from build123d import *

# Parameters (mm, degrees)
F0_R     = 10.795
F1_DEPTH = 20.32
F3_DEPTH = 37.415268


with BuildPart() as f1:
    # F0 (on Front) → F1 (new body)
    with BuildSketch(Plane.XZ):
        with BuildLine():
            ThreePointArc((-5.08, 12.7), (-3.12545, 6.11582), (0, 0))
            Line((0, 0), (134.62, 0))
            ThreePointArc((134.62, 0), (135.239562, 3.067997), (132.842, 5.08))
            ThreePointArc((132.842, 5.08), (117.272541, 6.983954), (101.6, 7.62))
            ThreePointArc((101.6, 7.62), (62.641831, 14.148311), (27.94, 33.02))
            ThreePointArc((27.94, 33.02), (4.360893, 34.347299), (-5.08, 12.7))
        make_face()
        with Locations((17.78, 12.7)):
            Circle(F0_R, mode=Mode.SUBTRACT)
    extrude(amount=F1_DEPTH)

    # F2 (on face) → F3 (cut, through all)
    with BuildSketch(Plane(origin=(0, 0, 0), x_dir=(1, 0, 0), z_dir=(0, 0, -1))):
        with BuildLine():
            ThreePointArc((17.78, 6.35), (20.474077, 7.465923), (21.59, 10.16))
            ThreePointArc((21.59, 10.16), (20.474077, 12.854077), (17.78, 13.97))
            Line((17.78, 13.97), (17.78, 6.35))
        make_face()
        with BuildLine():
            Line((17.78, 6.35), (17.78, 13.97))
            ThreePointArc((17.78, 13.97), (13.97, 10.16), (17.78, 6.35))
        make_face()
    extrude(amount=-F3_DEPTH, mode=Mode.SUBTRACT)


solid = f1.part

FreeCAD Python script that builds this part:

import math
import FreeCAD as App
import Part
import Sketcher

V = App.Vector
Q = App.Units.Quantity

doc = App.newDocument("Part")
body = doc.addObject("PartDesign::Body", "Body")

sketch1 = body.newObject("Sketcher::SketchObject", "Sketch")
sketch1.AttachmentSupport = (doc.getObject("XZ_Plane"), [""])
sketch1.MapMode = "FlatFace"
sketch1.addGeometry([
    Part.ArcOfCircle(Part.Circle(V(31.60446, 20.007784, 0), V(0, 0, 1), 37.405258), math.radians(-168.733788), math.radians(-147.663393)),
    Part.LineSegment(V(0, 0, 0), V(134.62, 0, 0)),
    Part.ArcOfCircle(Part.Circle(V(132.346953, 2.055584, 0), V(0, 0, 1), 3.064664), math.radians(-42.123977), math.radians(80.70407)),
    Part.ArcOfCircle(Part.Circle(V(101.599996, -185.788343, 0), V(0, 0, 1), 193.408343), math.radians(80.70406), math.radians(89.999999)),
    Part.ArcOfCircle(Part.Circle(V(101.599999, 127.126996, 0), V(0, 0, 1), 119.506996), math.radians(-128.051213), math.radians(-89.999999)),
    Part.ArcOfCircle(Part.Circle(V(15.196623, 16.739237, 0), V(0, 0, 1), 20.675031), math.radians(51.948788), math.radians(191.266216)),
    Part.Circle(V(17.78, 12.7, 0), V(0, 0, 1), 10.795),
], False)
sketch1.addConstraint([
    Sketcher.Constraint("Coincident", 0, 2, 1, 1),
    Sketcher.Constraint("Coincident", 1, 2, 2, 1),
    Sketcher.Constraint("Tangent", 2, 2, 3, 1),
    Sketcher.Constraint("Tangent", 3, 2, 4, 2),
    Sketcher.Constraint("Tangent", 4, 1, 5, 1),
    Sketcher.Constraint("Tangent", 5, 2, 0, 1),
    Sketcher.Constraint("Horizontal", 1),
    Sketcher.Constraint("Coincident", 0, 2, -1, 1),
    Sketcher.Constraint("Horizontal", 6, 3, 5, 2),
    Sketcher.Constraint("Vertical", 4, 3, 3, 2),
    Sketcher.Constraint("Diameter", 6, Q("0.85 in")),
    Sketcher.Constraint("DistanceX", 1, 1, 1, 2, Q("5.3 in")),
    Sketcher.Constraint("DistanceX", -1, 1, 3, 3, Q("3.9999999 in")),
    Sketcher.Constraint("Radius", 4, Q("4.7049999 in")),
    Sketcher.Constraint("DistanceY", 3, 2, 4, 1, Q("1 in")),
    Sketcher.Constraint("DistanceX", -1, 1, 6, 3, Q("0.7 in")),
    Sketcher.Constraint("DistanceY", -1, 1, 6, 3, Q("0.5 in")),
    Sketcher.Constraint("DistanceY", -1, 1, 2, 2, Q("0.2 in")),
    Sketcher.Constraint("DistanceY", -1, 1, 3, 2, Q("0.3 in")),
    Sketcher.Constraint("DistanceX", 5, 2, -1, 1, Q("0.2 in")),
    Sketcher.Constraint("DistanceX", -1, 1, 2, 2, Q("5.23 in")),
])
pad1 = body.newObject("PartDesign::Pad", "Pad")
pad1.Profile = sketch1
pad1.Length = Q("0.8 in")

sketch2 = body.newObject("Sketcher::SketchObject", "Sketch001")
sketch2.AttachmentSupport = (doc.getObject("XY_Plane"), [""])
sketch2.MapMode = "FlatFace"
sketch2.addGeometry([
    Part.ArcOfCircle(Part.Circle(V(17.8, -10.2, 0), V(0, 0, 1), 3.8), math.radians(0), math.radians(90)),
    Part.ArcOfCircle(Part.Circle(V(17.8, -10.2, 0), V(0, 0, 1), 3.8), math.radians(-90), math.radians(0)),
    Part.ArcOfCircle(Part.Circle(V(17.8, -10.2, 0), V(0, 0, 1), 3.8), math.radians(90), math.radians(270)),
], False)
sketch2.addConstraint([
    Sketcher.Constraint("Tangent", 0, 1, 1, 2),
    Sketcher.Constraint("Tangent", 1, 1, 2, 2),
    Sketcher.Constraint("Tangent", 2, 1, 0, 2),
    Sketcher.Constraint("Horizontal", 2, 3, 0, 1),
    Sketcher.Constraint("Vertical", 2, 3, 1, 1),
    Sketcher.Constraint("Vertical", 1, 1, 2, 1),
    Sketcher.Constraint("Radius", 0, Q("0.15 in")),
    Sketcher.Constraint("DistanceX", -1, 1, 0, 3, Q("0.7 in")),
    Sketcher.Constraint("DistanceY", 0, 3, -1, 1, Q("0.4 in")),
])
pocket1 = body.newObject("PartDesign::Pocket", "Pocket")
pocket1.Profile = sketch2
pocket1.Type = "ThroughAll"
pocket1.Reversed = True

doc.recompute()
